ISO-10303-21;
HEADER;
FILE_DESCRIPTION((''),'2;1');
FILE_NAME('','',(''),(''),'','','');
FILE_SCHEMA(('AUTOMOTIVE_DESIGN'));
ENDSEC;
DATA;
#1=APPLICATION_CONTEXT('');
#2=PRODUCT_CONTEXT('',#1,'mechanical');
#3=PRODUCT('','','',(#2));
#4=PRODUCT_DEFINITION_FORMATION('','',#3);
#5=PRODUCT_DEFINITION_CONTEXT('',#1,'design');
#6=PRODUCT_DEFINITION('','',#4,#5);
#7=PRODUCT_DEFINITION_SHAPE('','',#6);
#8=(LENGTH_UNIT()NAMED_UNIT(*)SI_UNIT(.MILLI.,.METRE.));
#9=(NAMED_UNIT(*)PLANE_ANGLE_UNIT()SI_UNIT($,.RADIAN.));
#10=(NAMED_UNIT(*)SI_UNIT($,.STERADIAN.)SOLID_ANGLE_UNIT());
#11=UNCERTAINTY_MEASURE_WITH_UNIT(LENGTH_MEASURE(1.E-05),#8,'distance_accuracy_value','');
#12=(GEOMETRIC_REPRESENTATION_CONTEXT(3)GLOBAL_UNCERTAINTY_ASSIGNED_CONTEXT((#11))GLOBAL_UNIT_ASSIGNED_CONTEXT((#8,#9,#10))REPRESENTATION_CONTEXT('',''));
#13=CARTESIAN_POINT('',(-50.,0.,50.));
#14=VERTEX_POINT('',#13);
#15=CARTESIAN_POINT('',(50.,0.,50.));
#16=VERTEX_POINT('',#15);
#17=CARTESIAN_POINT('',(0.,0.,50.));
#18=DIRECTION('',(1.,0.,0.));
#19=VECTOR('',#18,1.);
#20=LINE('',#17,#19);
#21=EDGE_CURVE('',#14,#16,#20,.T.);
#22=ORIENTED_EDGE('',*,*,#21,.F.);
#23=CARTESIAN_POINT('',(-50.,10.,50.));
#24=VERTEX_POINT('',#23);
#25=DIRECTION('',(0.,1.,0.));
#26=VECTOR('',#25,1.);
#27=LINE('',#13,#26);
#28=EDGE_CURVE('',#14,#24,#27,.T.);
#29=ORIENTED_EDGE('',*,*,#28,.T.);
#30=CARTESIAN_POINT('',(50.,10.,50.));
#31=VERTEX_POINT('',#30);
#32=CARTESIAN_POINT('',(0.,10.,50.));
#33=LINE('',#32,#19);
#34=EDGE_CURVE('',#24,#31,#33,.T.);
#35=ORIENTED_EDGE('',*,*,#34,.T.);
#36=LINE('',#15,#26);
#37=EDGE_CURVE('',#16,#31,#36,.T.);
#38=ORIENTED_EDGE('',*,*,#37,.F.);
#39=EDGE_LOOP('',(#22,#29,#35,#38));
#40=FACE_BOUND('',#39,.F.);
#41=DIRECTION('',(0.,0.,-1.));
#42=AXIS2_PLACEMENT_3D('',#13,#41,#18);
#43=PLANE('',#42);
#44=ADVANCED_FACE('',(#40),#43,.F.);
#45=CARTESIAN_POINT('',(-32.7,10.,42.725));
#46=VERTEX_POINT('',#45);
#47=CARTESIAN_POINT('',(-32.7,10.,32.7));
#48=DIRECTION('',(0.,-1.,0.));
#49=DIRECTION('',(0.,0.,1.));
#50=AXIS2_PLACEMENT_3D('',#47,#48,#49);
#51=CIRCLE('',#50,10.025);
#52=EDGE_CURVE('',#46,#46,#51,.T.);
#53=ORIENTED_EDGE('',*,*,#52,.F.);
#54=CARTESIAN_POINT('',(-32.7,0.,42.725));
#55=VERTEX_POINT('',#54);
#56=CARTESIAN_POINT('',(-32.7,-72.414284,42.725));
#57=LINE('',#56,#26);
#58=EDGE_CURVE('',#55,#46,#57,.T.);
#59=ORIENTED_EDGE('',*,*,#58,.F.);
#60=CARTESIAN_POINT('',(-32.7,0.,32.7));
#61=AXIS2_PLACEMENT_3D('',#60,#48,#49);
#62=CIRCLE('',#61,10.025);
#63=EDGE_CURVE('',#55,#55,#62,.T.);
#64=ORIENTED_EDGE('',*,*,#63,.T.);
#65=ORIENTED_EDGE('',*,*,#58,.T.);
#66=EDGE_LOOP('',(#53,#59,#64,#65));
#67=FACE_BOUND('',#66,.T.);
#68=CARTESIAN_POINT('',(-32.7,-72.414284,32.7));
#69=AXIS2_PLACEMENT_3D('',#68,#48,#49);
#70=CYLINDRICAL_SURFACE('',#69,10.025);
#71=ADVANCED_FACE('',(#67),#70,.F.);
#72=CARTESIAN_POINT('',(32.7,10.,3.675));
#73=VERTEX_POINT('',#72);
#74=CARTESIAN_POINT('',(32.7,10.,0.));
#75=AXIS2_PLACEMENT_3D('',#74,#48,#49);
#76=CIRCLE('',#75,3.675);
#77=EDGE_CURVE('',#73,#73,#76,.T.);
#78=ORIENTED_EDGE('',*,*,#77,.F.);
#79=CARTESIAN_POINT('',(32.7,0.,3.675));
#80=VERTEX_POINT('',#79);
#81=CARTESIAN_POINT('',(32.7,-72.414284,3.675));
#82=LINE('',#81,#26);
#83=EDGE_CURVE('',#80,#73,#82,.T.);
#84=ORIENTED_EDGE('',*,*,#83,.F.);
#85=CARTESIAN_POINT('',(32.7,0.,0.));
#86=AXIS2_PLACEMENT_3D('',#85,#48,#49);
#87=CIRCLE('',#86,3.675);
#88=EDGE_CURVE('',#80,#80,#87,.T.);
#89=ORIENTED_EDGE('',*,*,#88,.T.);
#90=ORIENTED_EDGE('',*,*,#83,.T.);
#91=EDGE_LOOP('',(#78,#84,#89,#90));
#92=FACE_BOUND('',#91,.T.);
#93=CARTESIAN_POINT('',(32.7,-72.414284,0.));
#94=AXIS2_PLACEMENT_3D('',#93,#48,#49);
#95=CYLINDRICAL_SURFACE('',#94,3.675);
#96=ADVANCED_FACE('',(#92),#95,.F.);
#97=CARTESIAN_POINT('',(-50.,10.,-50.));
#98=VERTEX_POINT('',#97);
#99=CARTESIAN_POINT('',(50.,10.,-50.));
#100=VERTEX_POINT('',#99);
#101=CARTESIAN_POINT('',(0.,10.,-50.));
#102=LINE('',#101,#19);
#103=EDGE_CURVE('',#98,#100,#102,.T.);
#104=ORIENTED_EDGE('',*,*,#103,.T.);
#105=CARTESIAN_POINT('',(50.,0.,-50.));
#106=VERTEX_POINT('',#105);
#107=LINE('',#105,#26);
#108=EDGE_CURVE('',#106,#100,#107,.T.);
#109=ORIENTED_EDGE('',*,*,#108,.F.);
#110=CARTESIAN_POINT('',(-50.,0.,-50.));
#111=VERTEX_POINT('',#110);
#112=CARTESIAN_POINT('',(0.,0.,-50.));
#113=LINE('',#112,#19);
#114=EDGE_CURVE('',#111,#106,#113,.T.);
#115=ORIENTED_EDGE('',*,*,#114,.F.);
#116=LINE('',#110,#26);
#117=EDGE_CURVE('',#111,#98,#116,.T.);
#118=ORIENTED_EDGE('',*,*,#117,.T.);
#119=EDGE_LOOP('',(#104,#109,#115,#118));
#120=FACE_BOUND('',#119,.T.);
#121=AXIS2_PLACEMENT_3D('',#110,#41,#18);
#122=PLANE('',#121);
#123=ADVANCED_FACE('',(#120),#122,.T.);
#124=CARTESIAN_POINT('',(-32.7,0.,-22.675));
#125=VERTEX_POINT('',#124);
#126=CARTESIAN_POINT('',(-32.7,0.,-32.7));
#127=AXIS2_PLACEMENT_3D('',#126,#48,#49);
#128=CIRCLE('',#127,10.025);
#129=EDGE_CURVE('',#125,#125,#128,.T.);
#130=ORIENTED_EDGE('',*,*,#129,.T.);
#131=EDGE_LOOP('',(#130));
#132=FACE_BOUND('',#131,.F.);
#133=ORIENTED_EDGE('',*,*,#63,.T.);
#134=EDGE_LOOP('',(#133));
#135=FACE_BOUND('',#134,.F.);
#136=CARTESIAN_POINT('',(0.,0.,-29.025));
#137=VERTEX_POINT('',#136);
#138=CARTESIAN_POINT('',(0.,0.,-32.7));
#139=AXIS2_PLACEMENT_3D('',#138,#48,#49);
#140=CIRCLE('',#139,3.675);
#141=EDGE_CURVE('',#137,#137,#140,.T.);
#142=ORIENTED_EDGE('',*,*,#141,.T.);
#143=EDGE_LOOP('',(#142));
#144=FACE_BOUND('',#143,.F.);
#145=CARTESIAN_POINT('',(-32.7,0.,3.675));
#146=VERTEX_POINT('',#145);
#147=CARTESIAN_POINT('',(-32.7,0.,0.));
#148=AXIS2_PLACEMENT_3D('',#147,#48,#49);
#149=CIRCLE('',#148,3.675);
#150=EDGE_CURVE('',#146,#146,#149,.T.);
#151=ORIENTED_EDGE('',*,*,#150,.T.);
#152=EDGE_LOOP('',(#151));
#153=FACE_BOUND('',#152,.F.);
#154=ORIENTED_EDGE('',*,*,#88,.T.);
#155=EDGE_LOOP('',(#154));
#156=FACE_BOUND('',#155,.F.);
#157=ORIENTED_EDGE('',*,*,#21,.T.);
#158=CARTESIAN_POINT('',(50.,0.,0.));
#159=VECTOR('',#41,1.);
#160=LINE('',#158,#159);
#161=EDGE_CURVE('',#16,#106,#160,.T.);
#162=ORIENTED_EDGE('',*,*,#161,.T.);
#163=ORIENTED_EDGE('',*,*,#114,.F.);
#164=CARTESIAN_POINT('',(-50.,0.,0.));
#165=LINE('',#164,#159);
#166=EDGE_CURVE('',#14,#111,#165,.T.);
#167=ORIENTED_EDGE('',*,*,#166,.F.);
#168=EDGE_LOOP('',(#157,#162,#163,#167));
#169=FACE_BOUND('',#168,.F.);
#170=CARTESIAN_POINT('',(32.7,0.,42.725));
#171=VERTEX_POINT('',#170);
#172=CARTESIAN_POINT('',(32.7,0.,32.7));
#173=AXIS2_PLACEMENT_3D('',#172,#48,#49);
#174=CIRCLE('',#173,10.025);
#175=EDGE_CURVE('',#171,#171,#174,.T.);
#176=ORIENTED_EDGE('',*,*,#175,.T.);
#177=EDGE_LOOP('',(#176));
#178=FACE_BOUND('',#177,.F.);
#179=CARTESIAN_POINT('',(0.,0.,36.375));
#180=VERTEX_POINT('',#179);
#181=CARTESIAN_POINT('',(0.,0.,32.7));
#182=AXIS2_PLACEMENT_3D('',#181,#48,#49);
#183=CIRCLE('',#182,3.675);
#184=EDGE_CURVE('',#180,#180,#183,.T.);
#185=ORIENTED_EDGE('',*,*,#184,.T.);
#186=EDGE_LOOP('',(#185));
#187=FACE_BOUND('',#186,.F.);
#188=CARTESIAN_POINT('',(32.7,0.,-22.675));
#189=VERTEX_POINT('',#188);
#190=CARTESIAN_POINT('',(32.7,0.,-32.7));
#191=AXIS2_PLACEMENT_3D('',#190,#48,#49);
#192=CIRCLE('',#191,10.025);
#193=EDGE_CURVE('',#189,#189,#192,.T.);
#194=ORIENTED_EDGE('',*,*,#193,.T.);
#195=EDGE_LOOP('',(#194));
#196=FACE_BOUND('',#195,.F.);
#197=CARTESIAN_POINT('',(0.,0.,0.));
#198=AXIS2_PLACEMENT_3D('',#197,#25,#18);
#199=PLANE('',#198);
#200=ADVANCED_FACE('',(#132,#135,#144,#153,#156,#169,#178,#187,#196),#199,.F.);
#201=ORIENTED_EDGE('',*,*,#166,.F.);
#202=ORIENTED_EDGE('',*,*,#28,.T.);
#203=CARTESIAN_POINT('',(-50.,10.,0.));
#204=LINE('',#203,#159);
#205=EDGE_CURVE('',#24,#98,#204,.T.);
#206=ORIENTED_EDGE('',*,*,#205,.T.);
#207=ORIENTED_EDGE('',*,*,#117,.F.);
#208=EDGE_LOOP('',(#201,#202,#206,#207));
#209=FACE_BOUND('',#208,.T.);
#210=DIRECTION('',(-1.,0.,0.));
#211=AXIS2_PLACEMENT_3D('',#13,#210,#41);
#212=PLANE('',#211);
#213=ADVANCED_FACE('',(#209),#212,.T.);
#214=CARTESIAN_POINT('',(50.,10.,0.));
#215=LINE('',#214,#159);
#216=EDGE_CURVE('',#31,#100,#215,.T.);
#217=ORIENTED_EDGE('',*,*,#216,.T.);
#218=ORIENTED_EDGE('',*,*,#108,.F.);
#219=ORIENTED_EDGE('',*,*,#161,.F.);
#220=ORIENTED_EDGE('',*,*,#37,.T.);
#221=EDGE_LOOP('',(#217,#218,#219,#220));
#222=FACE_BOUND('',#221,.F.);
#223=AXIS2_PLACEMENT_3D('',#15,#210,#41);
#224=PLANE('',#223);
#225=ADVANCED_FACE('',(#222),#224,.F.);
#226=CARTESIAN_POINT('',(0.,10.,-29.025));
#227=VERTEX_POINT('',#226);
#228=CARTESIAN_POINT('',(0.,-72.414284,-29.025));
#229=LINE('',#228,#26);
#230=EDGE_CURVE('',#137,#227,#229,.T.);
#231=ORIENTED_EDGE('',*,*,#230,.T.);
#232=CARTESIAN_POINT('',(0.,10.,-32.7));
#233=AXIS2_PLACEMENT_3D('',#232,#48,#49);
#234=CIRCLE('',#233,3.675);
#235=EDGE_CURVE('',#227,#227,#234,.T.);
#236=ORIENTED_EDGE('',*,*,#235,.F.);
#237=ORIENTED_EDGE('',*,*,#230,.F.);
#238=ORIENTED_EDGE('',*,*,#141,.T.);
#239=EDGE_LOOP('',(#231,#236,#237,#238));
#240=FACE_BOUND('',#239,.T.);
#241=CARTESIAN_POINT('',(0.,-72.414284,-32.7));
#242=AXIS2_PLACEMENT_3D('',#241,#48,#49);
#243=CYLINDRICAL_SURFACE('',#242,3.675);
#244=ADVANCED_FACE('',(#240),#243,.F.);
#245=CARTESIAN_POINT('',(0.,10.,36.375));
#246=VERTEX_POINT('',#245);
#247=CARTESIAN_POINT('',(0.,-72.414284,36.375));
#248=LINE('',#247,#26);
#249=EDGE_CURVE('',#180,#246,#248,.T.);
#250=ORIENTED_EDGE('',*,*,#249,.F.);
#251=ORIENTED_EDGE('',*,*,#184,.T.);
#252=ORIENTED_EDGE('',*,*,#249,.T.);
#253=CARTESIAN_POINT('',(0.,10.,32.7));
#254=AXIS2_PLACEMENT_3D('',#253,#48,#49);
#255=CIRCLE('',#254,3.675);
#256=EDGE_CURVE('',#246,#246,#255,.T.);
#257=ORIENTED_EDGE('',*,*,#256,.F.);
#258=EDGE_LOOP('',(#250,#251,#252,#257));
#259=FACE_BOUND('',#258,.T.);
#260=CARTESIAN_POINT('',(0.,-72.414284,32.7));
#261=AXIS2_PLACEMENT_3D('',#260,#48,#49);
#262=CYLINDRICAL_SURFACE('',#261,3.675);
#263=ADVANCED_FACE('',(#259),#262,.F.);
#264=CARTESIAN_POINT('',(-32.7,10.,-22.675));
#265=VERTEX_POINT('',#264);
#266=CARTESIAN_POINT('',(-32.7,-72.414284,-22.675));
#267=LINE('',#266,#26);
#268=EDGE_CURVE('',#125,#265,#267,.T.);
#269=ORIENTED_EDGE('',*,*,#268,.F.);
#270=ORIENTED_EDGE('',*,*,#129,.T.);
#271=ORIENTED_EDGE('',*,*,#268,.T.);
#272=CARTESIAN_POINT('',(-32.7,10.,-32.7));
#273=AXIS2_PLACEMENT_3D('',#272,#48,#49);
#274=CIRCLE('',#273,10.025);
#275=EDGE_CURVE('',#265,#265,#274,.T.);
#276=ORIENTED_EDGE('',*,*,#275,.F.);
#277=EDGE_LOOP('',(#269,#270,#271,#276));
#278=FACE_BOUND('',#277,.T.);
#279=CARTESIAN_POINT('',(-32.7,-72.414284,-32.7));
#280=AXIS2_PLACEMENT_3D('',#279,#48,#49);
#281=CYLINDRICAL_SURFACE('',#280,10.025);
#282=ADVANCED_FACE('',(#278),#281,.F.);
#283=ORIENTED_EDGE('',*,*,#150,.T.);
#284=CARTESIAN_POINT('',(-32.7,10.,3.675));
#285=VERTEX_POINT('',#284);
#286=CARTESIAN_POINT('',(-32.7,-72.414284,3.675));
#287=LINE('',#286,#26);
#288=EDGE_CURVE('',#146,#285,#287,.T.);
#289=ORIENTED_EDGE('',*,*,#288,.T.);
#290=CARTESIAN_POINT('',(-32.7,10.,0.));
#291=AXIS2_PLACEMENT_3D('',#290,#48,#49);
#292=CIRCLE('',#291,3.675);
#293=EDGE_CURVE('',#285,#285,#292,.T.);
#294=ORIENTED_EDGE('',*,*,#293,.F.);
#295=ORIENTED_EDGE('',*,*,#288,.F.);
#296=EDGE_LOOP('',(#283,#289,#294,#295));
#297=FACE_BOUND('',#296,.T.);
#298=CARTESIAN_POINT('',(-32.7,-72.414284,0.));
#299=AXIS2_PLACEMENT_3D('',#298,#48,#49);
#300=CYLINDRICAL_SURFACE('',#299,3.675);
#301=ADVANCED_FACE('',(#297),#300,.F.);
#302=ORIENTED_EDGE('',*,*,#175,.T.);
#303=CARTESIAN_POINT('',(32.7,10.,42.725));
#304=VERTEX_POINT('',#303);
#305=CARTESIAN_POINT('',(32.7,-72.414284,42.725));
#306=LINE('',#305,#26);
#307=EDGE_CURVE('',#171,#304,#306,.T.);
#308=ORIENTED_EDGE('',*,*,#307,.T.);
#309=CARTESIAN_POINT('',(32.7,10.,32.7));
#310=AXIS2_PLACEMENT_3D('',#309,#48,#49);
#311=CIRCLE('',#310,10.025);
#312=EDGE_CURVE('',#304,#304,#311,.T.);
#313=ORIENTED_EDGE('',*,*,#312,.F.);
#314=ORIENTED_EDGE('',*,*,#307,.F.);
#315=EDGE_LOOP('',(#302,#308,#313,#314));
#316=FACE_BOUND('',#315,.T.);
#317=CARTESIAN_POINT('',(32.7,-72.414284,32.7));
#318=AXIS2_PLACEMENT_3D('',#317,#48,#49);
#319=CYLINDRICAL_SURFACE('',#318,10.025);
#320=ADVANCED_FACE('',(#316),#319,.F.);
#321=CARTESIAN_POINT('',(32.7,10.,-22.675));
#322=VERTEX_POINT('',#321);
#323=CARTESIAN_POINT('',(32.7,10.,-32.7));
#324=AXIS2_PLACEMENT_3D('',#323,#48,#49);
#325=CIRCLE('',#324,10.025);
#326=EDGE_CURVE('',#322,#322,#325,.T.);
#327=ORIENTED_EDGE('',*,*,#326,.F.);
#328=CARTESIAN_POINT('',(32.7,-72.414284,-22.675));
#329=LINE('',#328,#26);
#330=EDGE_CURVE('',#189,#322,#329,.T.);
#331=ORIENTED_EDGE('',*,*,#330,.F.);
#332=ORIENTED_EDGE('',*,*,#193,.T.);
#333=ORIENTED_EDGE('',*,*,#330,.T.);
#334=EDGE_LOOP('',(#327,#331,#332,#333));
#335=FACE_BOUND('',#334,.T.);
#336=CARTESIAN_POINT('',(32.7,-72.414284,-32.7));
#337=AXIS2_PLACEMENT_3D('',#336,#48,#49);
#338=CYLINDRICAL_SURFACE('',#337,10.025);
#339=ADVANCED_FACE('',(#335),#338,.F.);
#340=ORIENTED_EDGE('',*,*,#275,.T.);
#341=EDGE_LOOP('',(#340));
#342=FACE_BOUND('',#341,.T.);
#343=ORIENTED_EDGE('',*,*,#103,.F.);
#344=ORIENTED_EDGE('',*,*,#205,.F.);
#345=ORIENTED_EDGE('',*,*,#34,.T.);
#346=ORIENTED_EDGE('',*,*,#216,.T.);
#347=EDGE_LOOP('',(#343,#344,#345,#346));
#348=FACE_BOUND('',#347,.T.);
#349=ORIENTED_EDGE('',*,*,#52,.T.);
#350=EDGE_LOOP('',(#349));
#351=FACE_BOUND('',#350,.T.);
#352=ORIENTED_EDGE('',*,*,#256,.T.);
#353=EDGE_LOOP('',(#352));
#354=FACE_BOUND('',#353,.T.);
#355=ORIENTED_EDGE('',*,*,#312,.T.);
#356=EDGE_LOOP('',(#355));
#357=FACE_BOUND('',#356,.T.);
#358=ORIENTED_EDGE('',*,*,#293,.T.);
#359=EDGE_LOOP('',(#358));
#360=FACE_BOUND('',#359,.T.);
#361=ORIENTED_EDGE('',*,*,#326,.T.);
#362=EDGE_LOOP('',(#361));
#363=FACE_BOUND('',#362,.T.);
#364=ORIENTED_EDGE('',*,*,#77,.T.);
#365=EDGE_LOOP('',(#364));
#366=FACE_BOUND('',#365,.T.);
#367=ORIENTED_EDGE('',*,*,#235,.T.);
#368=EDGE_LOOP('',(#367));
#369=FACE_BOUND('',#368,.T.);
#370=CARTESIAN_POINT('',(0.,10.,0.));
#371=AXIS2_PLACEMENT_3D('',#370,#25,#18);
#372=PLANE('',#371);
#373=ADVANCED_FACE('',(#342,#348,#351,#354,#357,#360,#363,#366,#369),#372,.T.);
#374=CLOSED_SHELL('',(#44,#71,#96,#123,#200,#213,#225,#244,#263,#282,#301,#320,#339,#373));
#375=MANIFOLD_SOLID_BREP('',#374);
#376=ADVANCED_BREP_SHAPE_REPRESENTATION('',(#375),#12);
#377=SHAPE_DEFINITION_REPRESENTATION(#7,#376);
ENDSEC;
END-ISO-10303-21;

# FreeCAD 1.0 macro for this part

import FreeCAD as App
import Part
import Sketcher

V = App.Vector


def add_polygon(sketch, points):
    """Adds a closed chain of lines whose ends are joined by coincident constraints."""
    first, n = sketch.GeometryCount, len(points)
    for a, b in zip(points, points[1:] + points[:1]):
        sketch.addGeometry(Part.LineSegment(App.Vector(*a, 0), App.Vector(*b, 0)), False)
    for i in range(n):
        sketch.addConstraint(Sketcher.Constraint("Coincident", first + i, 2, first + (i + 1) % n, 1))

doc = App.newDocument("Part")
body = doc.addObject("PartDesign::Body", "Body")

sketch1 = doc.addObject("Sketcher::SketchObject", "Sketch")
body.addObject(sketch1)
sketch1.AttachmentSupport = (doc.XZ_Plane, [""])
sketch1.MapMode = "FlatFace"
add_polygon(sketch1, [(-50, -50), (-50, 50), (50, 50), (50, -50)])
sketch1.addConstraint([
    Sketcher.Constraint("Vertical", 0),
    Sketcher.Constraint("Horizontal", 1),
    Sketcher.Constraint("Vertical", 2),
    Sketcher.Constraint("Horizontal", 3),
    Sketcher.Constraint("Symmetric", 0, 2, 2, 2, -1, 1),
    Sketcher.Constraint("Equal", 3, 0),
    Sketcher.Constraint("DistanceX", 1, 1, 1, 2, 100.0),
])
pad1 = doc.addObject("PartDesign::Pad", "Pad")
body.addObject(pad1)
pad1.Profile = sketch1
pad1.Length = 10
pad1.Reversed = True

sketch2 = doc.addObject("Sketcher::SketchObject", "Sketch001")
body.addObject(sketch2)
sketch2.AttachmentSupport = (doc.XZ_Plane, [""])
sketch2.MapMode = "FlatFace"
sketch2.addGeometry([
    Part.Circle(V(-32.7, -32.7, 0), V(0, 0, 1), 10.025),
    Part.Circle(V(32.7, -32.7, 0), V(0, 0, 1), 10.025),
    Part.Circle(V(32.7, 32.7, 0), V(0, 0, 1), 10.025),
    Part.Circle(V(-32.7, 32.7, 0), V(0, 0, 1), 10.025),
    Part.Circle(V(0, -32.7, 0), V(0, 0, 1), 3.675),
    Part.Circle(V(32.7, 0, 0), V(0, 0, 1), 3.675),
    Part.Circle(V(0, 32.7, 0), V(0, 0, 1), 3.675),
    Part.Circle(V(-32.7, 0, 0), V(0, 0, 1), 3.675),
], False)
sketch2.addConstraint([
    Sketcher.Constraint("Equal", 0, 1),
    Sketcher.Constraint("Equal", 1, 2),
    Sketcher.Constraint("Equal", 2, 3),
    Sketcher.Constraint("Equal", 4, 5),
    Sketcher.Constraint("Equal", 5, 6),
    Sketcher.Constraint("Equal", 6, 7),
    Sketcher.Constraint("Symmetric", 0, 3, 2, 3, -1, 1),
    Sketcher.Constraint("Symmetric", 1, 3, 3, 3, -1, 1),
    Sketcher.Constraint("Symmetric", 4, 3, 6, 3, -1, 1),
    Sketcher.Constraint("Symmetric", 5, 3, 7, 3, -1, 1),
    Sketcher.Constraint("Symmetric", 0, 3, 1, 3, -2),
    Sketcher.Constraint("PointOnObject", 4, 3, -2),
    Sketcher.Constraint("PointOnObject", 5, 3, -1),
    Sketcher.Constraint("Horizontal", 1, 3, 4, 3),
    Sketcher.Constraint("Vertical", 2, 3, 5, 3),
    Sketcher.Constraint("Diameter", 0, 20.05),
    Sketcher.Constraint("Diameter", 4, 7.35),
    Sketcher.Constraint("DistanceX", 0, 3, -1, 1, 32.7),
    Sketcher.Constraint("DistanceY", 0, 3, -1, 1, 32.7),
])
pocket1 = doc.addObject("PartDesign::Pocket", "Pocket")
body.addObject(pocket1)
pocket1.Profile = sketch2
pocket1.Type = "ThroughAll"
pocket1.Midplane = True

doc.recompute()
